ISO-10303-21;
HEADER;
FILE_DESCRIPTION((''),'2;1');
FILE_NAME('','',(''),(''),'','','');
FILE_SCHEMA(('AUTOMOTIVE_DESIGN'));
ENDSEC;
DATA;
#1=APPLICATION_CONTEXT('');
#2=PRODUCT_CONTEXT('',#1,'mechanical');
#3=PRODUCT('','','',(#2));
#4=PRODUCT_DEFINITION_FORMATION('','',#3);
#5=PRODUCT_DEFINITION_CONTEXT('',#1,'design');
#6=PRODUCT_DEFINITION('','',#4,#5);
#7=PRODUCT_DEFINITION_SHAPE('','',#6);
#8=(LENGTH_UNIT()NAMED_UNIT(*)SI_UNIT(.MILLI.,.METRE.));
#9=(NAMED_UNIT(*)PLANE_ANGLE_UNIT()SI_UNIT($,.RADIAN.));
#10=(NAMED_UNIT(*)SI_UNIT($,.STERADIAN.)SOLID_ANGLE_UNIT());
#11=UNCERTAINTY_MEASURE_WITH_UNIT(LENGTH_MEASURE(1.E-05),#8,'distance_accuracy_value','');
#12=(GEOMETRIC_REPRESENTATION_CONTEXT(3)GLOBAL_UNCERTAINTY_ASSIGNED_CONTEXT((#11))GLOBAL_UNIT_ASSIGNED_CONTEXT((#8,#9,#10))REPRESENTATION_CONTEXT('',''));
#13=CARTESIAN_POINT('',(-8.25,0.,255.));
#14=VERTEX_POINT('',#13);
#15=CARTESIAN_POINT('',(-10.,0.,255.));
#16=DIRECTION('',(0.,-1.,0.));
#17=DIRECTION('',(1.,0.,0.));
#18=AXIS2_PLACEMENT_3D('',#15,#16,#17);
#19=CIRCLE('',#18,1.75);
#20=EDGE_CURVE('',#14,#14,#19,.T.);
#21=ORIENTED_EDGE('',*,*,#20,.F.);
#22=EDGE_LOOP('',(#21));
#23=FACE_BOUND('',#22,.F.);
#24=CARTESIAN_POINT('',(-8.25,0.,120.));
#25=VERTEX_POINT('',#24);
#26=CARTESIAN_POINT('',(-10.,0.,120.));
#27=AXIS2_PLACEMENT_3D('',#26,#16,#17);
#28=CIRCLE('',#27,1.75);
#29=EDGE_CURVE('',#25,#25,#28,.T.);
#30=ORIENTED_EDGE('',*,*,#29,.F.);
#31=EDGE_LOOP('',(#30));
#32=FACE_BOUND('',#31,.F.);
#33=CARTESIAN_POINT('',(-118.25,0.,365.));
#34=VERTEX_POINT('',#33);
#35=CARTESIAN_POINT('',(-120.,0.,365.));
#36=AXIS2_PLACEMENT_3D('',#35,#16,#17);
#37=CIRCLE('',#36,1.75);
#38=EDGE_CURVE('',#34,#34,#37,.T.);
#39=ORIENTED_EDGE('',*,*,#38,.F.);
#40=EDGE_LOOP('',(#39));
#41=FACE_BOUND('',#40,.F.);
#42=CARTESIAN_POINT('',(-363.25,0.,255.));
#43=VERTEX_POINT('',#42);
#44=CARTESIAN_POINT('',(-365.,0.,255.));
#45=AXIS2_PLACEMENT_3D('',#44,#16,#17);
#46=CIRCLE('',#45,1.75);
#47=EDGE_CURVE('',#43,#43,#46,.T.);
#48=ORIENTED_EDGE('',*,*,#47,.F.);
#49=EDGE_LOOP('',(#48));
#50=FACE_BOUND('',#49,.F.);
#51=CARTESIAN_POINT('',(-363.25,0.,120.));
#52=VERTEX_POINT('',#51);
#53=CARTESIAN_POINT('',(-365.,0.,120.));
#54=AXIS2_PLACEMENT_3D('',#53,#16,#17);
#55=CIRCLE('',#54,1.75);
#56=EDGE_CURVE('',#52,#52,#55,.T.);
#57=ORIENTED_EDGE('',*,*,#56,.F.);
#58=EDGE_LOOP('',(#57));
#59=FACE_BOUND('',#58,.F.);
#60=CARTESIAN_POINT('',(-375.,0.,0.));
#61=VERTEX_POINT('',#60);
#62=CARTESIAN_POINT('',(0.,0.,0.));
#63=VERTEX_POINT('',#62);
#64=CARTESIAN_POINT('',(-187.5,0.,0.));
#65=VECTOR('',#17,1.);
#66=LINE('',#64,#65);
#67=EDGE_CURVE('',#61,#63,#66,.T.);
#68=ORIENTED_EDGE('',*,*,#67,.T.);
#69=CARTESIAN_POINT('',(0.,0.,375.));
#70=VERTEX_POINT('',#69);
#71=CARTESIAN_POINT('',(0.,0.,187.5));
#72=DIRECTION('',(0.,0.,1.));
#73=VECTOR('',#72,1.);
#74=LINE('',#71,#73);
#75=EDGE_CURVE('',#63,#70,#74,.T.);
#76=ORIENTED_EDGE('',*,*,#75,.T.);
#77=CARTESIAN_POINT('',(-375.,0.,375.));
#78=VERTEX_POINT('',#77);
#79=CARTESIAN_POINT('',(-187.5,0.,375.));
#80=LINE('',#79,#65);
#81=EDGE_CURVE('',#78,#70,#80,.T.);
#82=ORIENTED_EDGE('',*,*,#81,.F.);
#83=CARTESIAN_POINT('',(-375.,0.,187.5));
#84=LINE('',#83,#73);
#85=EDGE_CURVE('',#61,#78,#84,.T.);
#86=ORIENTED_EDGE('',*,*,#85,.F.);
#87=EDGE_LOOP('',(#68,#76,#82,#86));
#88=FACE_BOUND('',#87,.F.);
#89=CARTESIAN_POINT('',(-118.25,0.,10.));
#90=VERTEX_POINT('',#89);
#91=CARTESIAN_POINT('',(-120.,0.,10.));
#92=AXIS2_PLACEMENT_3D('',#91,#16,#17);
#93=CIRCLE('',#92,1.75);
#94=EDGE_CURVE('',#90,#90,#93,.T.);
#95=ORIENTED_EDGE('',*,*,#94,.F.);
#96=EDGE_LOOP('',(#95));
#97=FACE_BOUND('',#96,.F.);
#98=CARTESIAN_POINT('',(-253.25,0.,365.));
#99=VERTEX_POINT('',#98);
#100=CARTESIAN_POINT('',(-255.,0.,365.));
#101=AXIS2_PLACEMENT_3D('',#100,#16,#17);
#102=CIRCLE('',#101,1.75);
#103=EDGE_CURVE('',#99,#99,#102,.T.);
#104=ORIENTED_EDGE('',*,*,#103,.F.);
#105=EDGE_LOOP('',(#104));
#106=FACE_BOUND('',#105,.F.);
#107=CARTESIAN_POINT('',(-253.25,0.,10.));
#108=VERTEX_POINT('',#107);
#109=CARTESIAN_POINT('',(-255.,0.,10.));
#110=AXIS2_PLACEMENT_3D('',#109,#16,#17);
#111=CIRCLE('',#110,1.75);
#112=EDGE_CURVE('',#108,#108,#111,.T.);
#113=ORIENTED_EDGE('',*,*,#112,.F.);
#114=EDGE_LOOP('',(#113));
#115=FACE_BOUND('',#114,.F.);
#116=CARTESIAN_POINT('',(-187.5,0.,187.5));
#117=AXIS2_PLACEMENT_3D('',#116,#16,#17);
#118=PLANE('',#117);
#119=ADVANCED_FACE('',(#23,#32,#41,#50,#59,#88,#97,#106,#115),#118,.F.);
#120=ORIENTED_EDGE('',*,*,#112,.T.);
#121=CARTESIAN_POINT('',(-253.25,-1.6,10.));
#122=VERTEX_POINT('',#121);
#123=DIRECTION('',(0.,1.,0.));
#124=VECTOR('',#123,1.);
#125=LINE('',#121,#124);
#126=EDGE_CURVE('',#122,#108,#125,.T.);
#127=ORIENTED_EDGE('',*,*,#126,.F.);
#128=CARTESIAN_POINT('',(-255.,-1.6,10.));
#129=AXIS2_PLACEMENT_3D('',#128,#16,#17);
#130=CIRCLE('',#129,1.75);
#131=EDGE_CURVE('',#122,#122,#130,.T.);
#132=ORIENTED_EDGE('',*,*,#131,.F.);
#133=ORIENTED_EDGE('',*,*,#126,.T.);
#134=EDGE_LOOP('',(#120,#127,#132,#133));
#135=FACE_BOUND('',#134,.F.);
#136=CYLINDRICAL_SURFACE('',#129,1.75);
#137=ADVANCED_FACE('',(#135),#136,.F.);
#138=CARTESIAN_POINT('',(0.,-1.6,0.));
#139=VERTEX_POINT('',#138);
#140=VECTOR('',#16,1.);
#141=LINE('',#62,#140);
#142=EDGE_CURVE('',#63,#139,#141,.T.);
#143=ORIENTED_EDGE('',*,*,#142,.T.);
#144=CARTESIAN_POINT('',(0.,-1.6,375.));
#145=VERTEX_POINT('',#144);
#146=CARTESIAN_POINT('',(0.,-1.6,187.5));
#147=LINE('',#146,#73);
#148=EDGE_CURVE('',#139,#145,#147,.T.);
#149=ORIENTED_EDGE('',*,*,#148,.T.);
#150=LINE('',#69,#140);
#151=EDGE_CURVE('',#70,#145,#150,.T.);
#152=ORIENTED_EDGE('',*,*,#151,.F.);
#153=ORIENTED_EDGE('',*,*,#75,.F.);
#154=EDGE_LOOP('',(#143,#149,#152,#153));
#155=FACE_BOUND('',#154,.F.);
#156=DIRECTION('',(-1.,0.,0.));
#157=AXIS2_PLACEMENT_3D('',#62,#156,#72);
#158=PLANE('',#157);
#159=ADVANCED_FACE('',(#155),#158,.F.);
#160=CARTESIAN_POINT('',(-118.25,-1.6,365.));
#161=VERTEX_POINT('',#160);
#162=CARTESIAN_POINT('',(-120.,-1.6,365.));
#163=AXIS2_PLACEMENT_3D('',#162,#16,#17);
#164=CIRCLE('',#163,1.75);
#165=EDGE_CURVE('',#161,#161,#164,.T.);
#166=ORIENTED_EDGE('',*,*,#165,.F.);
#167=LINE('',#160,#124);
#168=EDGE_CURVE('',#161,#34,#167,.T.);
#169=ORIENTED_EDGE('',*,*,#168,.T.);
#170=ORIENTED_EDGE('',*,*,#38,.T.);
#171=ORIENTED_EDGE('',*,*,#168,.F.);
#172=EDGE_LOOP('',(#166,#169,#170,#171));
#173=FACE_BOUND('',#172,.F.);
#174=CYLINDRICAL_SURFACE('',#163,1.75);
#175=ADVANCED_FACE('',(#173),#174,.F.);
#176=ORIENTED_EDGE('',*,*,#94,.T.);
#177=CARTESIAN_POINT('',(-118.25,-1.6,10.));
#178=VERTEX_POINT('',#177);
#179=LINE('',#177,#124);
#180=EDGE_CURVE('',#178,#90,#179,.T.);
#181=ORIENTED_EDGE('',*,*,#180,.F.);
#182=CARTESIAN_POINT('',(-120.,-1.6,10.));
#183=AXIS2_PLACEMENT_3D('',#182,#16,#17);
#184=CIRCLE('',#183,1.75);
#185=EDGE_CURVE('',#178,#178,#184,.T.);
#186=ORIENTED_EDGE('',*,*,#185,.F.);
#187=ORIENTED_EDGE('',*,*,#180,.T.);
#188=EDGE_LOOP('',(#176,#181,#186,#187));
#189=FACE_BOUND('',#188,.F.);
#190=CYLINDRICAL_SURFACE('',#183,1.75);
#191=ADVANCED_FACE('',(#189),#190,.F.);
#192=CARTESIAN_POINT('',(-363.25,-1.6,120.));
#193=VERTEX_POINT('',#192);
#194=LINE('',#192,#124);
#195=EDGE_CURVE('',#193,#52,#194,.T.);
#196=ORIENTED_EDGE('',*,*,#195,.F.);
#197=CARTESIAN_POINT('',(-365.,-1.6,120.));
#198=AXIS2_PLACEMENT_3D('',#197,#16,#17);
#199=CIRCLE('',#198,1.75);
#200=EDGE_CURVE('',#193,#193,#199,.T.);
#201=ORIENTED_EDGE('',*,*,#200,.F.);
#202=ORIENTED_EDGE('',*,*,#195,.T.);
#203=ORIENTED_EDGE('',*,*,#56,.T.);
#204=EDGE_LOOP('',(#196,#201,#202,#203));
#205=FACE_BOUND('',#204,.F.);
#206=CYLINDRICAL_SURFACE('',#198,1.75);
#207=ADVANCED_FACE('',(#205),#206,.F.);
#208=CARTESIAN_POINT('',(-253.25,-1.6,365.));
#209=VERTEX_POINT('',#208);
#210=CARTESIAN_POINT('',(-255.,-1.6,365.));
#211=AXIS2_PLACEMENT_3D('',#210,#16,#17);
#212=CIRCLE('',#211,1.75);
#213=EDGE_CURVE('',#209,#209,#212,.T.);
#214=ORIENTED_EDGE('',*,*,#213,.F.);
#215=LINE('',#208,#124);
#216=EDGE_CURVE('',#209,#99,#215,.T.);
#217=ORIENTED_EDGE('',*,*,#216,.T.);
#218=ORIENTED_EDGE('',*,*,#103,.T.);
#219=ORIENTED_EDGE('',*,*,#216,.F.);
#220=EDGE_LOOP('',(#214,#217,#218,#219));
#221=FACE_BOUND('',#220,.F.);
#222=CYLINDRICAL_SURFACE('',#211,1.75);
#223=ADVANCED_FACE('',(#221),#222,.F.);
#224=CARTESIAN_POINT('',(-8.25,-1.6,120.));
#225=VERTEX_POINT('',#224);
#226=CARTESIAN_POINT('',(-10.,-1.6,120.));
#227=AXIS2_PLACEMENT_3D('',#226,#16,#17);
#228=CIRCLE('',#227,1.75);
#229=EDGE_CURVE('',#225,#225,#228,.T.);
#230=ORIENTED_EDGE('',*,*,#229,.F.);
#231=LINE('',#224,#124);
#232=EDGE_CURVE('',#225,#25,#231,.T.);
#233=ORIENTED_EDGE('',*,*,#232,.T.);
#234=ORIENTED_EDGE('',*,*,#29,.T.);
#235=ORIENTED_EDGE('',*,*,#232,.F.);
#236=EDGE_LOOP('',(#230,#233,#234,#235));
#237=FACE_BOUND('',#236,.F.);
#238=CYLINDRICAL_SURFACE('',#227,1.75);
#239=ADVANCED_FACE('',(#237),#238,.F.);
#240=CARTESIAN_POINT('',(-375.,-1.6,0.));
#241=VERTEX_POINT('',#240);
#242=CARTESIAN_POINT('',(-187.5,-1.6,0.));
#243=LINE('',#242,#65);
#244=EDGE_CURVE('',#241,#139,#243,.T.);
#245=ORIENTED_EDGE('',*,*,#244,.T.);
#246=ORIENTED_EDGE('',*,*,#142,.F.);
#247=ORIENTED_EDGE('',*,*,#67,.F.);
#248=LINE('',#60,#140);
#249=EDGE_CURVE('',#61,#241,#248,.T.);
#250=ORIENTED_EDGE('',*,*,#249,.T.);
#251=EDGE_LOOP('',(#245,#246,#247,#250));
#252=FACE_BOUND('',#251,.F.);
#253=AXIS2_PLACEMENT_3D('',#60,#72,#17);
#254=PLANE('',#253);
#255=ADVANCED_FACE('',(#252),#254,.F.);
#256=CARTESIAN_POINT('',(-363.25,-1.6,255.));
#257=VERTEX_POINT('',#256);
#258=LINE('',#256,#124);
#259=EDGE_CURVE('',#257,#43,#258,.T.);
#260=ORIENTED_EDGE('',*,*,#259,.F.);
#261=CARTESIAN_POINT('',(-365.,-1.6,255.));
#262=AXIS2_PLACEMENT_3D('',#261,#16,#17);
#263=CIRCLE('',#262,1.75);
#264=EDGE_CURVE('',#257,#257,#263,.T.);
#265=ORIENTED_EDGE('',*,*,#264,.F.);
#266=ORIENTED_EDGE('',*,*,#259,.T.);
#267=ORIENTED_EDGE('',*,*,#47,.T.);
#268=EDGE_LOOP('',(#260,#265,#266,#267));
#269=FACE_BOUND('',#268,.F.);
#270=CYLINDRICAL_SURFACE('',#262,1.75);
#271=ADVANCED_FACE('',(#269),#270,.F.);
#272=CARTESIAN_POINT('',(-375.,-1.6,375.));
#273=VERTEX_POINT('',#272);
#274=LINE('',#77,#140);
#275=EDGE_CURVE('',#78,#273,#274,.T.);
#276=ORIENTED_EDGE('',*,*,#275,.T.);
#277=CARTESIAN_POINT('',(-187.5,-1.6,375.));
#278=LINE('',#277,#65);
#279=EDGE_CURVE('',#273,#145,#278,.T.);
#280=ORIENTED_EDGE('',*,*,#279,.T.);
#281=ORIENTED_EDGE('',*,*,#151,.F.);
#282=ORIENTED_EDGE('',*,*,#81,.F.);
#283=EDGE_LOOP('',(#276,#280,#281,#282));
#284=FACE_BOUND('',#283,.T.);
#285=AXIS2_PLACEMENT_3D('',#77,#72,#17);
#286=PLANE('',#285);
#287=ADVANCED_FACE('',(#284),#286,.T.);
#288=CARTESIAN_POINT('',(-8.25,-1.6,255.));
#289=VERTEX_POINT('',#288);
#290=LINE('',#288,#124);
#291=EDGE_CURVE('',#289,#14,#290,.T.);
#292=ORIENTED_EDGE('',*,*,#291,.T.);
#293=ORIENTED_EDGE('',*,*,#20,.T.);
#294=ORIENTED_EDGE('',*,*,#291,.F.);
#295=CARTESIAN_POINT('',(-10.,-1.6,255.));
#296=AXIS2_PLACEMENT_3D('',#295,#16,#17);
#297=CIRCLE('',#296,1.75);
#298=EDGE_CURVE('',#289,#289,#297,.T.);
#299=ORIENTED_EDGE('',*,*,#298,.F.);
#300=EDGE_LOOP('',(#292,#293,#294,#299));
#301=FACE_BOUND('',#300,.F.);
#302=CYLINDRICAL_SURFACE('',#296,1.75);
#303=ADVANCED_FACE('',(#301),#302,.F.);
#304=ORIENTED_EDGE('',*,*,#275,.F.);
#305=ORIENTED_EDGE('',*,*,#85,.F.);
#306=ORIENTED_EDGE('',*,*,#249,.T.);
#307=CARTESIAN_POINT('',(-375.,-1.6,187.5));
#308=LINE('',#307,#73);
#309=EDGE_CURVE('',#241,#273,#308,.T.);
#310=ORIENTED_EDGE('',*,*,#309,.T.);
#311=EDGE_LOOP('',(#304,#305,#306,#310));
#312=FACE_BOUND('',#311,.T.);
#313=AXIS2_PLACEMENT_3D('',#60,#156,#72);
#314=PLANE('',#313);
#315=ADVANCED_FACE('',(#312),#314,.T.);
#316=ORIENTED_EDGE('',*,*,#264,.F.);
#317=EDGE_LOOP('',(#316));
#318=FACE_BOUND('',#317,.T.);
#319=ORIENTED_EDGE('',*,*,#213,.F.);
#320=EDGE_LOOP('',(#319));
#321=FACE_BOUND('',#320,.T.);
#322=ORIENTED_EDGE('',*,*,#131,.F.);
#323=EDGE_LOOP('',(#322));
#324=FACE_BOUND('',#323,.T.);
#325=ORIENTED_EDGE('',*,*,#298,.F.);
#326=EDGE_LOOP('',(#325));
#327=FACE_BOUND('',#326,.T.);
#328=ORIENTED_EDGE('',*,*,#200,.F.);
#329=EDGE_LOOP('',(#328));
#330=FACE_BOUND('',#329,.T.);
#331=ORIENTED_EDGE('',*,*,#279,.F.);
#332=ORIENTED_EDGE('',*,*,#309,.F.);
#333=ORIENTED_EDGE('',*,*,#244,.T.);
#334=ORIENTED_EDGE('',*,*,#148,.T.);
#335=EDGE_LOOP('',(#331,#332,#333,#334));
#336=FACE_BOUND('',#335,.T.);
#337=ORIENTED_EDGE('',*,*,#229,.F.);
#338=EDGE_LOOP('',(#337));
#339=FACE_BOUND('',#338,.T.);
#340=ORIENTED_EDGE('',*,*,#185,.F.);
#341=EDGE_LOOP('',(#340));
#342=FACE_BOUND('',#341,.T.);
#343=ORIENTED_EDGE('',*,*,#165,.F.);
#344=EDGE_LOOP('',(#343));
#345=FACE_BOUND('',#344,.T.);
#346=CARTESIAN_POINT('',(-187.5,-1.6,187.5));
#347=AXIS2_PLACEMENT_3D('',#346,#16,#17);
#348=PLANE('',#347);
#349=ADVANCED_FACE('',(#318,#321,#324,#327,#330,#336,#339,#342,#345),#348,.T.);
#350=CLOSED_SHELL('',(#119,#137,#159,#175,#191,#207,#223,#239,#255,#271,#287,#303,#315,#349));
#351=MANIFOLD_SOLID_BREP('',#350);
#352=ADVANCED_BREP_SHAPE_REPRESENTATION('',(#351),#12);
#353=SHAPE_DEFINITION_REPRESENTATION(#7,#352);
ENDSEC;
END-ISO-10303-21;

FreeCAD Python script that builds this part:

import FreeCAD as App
import Part
import Sketcher


def add_polygon(sketch, points):
    """Adds a closed chain of lines whose ends are joined by coincident constraints."""
    first, n = sketch.GeometryCount, len(points)
    for a, b in zip(points, points[1:] + points[:1]):
        sketch.addGeometry(Part.LineSegment(App.Vector(*a, 0), App.Vector(*b, 0)), False)
    for i in range(n):
        sketch.addConstraint(Sketcher.Constraint("Coincident", first + i, 2, first + (i + 1) % n, 1))

doc = App.newDocument("Part")
body = doc.addObject("PartDesign::Body", "Body")

# Sketch on XZ plane
sketch1 = body.newObject("Sketcher::SketchObject", "Sketch")
sketch1.AttachmentSupport = (doc.getObject("XZ_Plane"), [""])
sketch1.MapMode = "FlatFace"
add_polygon(sketch1, [(-375, 375), (-375, 0), (0, 0), (0, 375)])  # lines 0-3
sketch1.addConstraint([
    Sketcher.Constraint("Vertical", 0),
    Sketcher.Constraint("Horizontal", 1),
    Sketcher.Constraint("Vertical", 2),
    Sketcher.Constraint("Horizontal", 3),
    Sketcher.Constraint("Coincident", 1, 2, -1, 1),
    Sketcher.Constraint("Equal", 3, 0),
    Sketcher.Constraint("DistanceX", 1, 1, 1, 2, 375.0),
])
pad1 = body.newObject("PartDesign::Pad", "Pad")
pad1.Profile = sketch1
pad1.Length = 1.6

# Sketch on XZ plane
sketch2 = body.newObject("Sketcher::SketchObject", "Sketch001")
sketch2.AttachmentSupport = (doc.getObject("XZ_Plane"), [""])
sketch2.MapMode = "FlatFace"
sketch2.AttachmentOffset = App.Placement(App.Vector(0, 0, 1.6), App.Rotation())
sketch2.addGeometry([
    Part.Circle(App.Vector(-255, 365, 0), App.Vector(0, 0, 1), 1.8),  # 0
    Part.Circle(App.Vector(-120, 365, 0), App.Vector(0, 0, 1), 1.8),  # 1
    Part.Circle(App.Vector(-10, 120, 0), App.Vector(0, 0, 1), 1.8),  # 2
    Part.Circle(App.Vector(-365, 120, 0), App.Vector(0, 0, 1), 1.8),  # 3
    Part.Circle(App.Vector(-365, 255, 0), App.Vector(0, 0, 1), 1.8),  # 4
    Part.Circle(App.Vector(-10, 255, 0), App.Vector(0, 0, 1), 1.8),  # 5
    Part.Circle(App.Vector(-120, 10, 0), App.Vector(0, 0, 1), 1.8),  # 6
    Part.Circle(App.Vector(-255, 10, 0), App.Vector(0, 0, 1), 1.8),  # 7
], False)
sketch2.addConstraint([
    Sketcher.Constraint("Equal", 0, 1),
    Sketcher.Constraint("Equal", 1, 2),
    Sketcher.Constraint("Equal", 2, 3),
    Sketcher.Constraint("Equal", 3, 4),
    Sketcher.Constraint("Equal", 4, 5),
    Sketcher.Constraint("Equal", 5, 6),
    Sketcher.Constraint("Equal", 6, 7),
    Sketcher.Constraint("Horizontal", 0, 3, 1, 3),
    Sketcher.Constraint("Horizontal", 2, 3, 3, 3),
    Sketcher.Constraint("Horizontal", 4, 3, 5, 3),
    Sketcher.Constraint("Horizontal", 6, 3, 7, 3),
    Sketcher.Constraint("Vertical", 3, 3, 4, 3),
    Sketcher.Constraint("Vertical", 2, 3, 5, 3),
    Sketcher.Constraint("Vertical", 1, 3, 6, 3),
    Sketcher.Constraint("Vertical", 0, 3, 7, 3),
    Sketcher.Constraint("Diameter", 0, 3.5),
    Sketcher.Constraint("DistanceX", 0, 3, -1, 1, 255.0),
    Sketcher.Constraint("DistanceY", -1, 1, 0, 3, 365.0),
    Sketcher.Constraint("DistanceX", 1, 3, -1, 1, 120.0),
    Sketcher.Constraint("DistanceX", 2, 3, -1, 1, 10.0),
    Sketcher.Constraint("DistanceY", -1, 1, 2, 3, 120.0),
    Sketcher.Constraint("DistanceX", 3, 3, -1, 1, 365.0),
    Sketcher.Constraint("DistanceY", -1, 1, 4, 3, 255.0),
    Sketcher.Constraint("DistanceY", -1, 1, 6, 3, 10.0),
])
pocket1 = body.newObject("PartDesign::Pocket", "Pocket")
pocket1.Profile = sketch2
pocket1.Length = 2

doc.recompute()
